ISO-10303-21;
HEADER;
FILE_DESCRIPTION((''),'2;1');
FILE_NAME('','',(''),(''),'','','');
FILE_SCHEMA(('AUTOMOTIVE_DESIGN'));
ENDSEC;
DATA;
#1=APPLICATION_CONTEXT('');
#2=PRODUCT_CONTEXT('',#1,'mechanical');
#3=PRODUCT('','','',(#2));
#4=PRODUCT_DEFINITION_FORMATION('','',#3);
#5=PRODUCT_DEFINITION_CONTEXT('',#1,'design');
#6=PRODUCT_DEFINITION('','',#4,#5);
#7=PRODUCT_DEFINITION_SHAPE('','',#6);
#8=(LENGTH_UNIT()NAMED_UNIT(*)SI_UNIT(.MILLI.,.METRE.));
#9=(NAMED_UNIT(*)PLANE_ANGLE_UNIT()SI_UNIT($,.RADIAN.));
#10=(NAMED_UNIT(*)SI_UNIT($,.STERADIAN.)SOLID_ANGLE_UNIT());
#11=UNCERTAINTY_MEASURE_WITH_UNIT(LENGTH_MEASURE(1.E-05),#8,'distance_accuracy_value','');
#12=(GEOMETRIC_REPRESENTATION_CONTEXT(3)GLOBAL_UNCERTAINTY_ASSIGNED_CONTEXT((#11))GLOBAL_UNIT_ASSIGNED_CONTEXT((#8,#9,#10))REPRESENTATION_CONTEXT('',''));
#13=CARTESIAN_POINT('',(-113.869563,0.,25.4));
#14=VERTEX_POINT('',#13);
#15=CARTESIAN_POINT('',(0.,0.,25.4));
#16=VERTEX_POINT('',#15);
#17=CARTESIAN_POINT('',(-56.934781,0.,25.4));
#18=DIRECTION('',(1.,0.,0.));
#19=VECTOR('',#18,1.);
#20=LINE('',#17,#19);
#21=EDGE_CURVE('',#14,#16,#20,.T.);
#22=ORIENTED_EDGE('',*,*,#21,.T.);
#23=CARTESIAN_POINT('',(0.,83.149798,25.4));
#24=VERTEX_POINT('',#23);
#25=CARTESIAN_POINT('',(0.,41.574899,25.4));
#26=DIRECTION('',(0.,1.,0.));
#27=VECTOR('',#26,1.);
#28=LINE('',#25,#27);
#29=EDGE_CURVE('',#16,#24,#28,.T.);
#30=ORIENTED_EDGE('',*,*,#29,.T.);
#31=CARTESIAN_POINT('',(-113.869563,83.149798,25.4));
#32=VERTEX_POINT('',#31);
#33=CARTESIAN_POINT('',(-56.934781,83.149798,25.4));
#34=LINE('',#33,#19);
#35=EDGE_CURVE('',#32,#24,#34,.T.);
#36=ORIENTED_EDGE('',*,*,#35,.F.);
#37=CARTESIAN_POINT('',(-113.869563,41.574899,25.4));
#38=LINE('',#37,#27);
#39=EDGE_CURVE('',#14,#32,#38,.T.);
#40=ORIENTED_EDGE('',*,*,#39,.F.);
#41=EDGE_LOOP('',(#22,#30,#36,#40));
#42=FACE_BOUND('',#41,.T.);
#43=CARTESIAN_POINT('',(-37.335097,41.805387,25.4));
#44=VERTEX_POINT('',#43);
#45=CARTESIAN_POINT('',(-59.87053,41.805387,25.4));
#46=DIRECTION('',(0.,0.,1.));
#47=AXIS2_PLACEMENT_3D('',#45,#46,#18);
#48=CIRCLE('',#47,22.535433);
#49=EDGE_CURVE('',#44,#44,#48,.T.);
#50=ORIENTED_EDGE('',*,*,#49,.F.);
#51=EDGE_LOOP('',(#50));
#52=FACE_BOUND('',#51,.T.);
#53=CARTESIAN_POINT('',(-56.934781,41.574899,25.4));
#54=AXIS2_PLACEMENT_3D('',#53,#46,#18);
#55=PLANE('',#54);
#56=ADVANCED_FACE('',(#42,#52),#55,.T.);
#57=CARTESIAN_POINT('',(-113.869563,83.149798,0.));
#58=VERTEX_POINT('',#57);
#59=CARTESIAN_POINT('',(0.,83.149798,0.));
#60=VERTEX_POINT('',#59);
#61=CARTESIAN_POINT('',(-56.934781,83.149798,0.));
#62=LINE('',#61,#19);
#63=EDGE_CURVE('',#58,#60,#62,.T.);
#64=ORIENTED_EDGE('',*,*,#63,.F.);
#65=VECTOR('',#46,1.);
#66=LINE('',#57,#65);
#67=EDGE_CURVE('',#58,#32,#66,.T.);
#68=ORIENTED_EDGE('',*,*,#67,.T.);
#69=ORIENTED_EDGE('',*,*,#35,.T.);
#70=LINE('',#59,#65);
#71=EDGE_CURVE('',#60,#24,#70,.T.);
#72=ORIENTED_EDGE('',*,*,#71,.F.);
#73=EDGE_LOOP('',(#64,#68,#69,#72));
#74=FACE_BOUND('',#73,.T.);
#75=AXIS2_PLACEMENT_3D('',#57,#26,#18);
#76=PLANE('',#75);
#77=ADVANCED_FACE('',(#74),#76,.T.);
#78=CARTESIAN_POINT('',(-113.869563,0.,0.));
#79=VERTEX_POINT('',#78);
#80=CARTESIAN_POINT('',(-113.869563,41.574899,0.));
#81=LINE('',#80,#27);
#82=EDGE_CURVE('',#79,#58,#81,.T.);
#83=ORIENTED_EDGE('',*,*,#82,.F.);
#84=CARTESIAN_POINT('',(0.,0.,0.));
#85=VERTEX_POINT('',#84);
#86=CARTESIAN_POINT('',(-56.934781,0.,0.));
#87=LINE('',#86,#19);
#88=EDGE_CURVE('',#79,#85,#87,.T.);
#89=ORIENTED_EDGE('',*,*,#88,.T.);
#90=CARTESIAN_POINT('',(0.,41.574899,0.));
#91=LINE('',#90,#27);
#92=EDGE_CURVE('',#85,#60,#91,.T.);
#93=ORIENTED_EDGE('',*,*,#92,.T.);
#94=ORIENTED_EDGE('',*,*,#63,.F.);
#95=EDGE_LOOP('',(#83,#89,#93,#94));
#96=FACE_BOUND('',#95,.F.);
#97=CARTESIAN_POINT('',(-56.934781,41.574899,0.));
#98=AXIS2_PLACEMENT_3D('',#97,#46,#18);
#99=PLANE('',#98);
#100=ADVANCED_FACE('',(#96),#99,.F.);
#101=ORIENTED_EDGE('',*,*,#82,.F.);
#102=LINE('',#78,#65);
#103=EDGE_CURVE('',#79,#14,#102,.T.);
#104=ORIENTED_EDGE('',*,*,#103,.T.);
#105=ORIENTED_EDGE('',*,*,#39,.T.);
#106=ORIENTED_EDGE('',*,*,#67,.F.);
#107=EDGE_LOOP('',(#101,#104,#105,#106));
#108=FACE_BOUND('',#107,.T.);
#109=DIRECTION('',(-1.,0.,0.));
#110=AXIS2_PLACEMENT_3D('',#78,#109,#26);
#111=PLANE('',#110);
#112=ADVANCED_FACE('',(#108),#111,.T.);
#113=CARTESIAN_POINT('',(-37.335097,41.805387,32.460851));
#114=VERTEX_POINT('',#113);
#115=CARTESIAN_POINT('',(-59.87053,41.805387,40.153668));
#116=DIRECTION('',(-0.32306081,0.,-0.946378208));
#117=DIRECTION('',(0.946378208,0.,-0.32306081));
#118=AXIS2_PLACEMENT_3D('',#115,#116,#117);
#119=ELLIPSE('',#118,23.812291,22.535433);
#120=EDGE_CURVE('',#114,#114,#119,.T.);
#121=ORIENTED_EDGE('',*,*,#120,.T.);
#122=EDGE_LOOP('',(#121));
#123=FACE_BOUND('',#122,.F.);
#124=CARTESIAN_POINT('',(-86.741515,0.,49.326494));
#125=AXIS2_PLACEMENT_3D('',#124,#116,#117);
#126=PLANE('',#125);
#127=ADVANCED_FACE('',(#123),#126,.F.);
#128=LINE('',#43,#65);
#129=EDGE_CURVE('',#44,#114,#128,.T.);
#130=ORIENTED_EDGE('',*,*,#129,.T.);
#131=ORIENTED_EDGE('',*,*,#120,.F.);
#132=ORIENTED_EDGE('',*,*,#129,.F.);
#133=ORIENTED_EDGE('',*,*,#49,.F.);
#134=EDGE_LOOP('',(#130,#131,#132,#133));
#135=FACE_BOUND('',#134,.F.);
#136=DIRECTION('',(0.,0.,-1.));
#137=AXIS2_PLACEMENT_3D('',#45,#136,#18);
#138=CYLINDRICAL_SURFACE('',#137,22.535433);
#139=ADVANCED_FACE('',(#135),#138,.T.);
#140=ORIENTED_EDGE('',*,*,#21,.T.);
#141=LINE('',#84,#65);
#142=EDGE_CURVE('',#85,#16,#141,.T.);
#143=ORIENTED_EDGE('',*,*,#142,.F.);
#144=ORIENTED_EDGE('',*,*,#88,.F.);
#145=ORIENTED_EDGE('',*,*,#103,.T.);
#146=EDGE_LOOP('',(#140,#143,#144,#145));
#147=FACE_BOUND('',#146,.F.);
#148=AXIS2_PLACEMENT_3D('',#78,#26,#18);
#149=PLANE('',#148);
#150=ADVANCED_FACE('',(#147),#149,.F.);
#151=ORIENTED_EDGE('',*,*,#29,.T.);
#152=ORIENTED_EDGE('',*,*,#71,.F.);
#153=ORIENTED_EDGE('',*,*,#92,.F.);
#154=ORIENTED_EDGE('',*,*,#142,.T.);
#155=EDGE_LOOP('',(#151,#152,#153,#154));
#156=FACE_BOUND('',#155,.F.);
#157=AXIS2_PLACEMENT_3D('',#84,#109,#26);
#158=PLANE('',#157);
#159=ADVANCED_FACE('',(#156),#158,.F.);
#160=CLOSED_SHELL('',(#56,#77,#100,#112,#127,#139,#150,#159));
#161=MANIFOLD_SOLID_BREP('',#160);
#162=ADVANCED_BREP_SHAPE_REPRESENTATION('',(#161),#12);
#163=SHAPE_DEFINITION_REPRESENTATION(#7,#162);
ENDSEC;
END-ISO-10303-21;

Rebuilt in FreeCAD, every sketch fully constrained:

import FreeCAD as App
import Part
import Sketcher
from FreeCAD import Vector
Q = App.Units.Quantity

doc = App.newDocument("Part")
body = doc.addObject("PartDesign::Body", "Body")

sketch1 = doc.addObject("Sketcher::SketchObject", "Sketch")
body.addObject(sketch1)
sketch1.AttachmentSupport = (doc.XY_Plane, [""])
sketch1.MapMode = "FlatFace"
sketch1.addGeometry([
    Part.LineSegment(Vector(-113.869563, 83.149798, 0), Vector(-113.869563, 0, 0)),
    Part.LineSegment(Vector(-113.869563, 0, 0), Vector(0, 0, 0)),
    Part.LineSegment(Vector(0, 0, 0), Vector(0, 83.149798, 0)),
    Part.LineSegment(Vector(0, 83.149798, 0), Vector(-113.869563, 83.149798, 0)),
], False)
sketch1.addConstraint([
    Sketcher.Constraint("Coincident", 0, 2, 1, 1),
    Sketcher.Constraint("Coincident", 1, 2, 2, 1),
    Sketcher.Constraint("Coincident", 2, 2, 3, 1),
    Sketcher.Constraint("Coincident", 3, 2, 0, 1),
    Sketcher.Constraint("Vertical", 0),
    Sketcher.Constraint("Horizontal", 1),
    Sketcher.Constraint("Vertical", 2),
    Sketcher.Constraint("Horizontal", 3),
    Sketcher.Constraint("Coincident", 1, 2, -1, 1),
    Sketcher.Constraint("DistanceY", 0, 2, 0, 1, 83.149798),
    Sketcher.Constraint("DistanceX", 1, 1, 1, 2, 113.869563),
])
pad1 = doc.addObject("PartDesign::Pad", "Pad")
body.addObject(pad1)
pad1.Profile = sketch1
pad1.Length = Q("1 in")

sketch2 = doc.addObject("Sketcher::SketchObject", "Sketch001")
body.addObject(sketch2)
sketch2.AttachmentSupport = (doc.XY_Plane, [""])
sketch2.MapMode = "FlatFace"
sketch2.AttachmentOffset = App.Placement(Vector(0, 0, 1 * 25.4), App.Rotation())
sketch2.addGeometry(Part.Circle(Vector(-59.87053, 41.805387, 0), Vector(0, 0, 1), 22.535433), False)
sketch2.addConstraint([
    Sketcher.Constraint("Diameter", 0, 45.070866),
    Sketcher.Constraint("DistanceX", 0, 3, -1, 1, 59.87053),
    Sketcher.Constraint("DistanceY", -1, 1, 0, 3, 41.805387),
])
pad2 = doc.addObject("PartDesign::Pad", "Pad001")
body.addObject(pad2)
pad2.Profile = sketch2
pad2.Length = Q("1 in")

sketch3 = doc.addObject("Sketcher::SketchObject", "Sketch002")
body.addObject(sketch3)
sketch3.AttachmentSupport = (doc.XZ_Plane, [""])
sketch3.MapMode = "FlatFace"
sketch3.addGeometry([
    Part.LineSegment(Vector(-102.13092, 49.10665, 0), Vector(-86.741515, 49.326494, 0)),
    Part.LineSegment(Vector(-86.741515, 49.326494, 0), Vector(-31.999189, 30.639356, 0)),
    Part.LineSegment(Vector(-31.999189, 30.639356, 0), Vector(-31.999189, 64.935751, 0)),
    Part.LineSegment(Vector(-31.999189, 64.935751, 0), Vector(-102.13092, 49.10665, 0)),
], False)
sketch3.addConstraint([
    Sketcher.Constraint("Coincident", 0, 2, 1, 1),
    Sketcher.Constraint("Coincident", 1, 2, 2, 1),
    Sketcher.Constraint("Coincident", 2, 2, 3, 1),
    Sketcher.Constraint("Coincident", 3, 2, 0, 1),
    Sketcher.Constraint("Vertical", 2),
    Sketcher.Constraint("DistanceY", 3, 2, 2, 2, 15.829101),
    Sketcher.Constraint("DistanceY", 2, 1, 2, 2, 34.296395),
    Sketcher.Constraint("DistanceX", 1, 2, -1, 1, 31.999189),
    Sketcher.Constraint("DistanceY", -1, 1, 2, 2, 64.935751),
    Sketcher.Constraint("DistanceX", 3, 2, -1, 1, 102.13092),
    Sketcher.Constraint("Distance", 0, 15.390975),
    Sketcher.Constraint("Distance", 1, 57.844026),
])
pocket1 = doc.addObject("PartDesign::Pocket", "Pocket")
body.addObject(pocket1)
pocket1.Profile = sketch3
pocket1.Length = Q("3 in")

doc.recompute()
